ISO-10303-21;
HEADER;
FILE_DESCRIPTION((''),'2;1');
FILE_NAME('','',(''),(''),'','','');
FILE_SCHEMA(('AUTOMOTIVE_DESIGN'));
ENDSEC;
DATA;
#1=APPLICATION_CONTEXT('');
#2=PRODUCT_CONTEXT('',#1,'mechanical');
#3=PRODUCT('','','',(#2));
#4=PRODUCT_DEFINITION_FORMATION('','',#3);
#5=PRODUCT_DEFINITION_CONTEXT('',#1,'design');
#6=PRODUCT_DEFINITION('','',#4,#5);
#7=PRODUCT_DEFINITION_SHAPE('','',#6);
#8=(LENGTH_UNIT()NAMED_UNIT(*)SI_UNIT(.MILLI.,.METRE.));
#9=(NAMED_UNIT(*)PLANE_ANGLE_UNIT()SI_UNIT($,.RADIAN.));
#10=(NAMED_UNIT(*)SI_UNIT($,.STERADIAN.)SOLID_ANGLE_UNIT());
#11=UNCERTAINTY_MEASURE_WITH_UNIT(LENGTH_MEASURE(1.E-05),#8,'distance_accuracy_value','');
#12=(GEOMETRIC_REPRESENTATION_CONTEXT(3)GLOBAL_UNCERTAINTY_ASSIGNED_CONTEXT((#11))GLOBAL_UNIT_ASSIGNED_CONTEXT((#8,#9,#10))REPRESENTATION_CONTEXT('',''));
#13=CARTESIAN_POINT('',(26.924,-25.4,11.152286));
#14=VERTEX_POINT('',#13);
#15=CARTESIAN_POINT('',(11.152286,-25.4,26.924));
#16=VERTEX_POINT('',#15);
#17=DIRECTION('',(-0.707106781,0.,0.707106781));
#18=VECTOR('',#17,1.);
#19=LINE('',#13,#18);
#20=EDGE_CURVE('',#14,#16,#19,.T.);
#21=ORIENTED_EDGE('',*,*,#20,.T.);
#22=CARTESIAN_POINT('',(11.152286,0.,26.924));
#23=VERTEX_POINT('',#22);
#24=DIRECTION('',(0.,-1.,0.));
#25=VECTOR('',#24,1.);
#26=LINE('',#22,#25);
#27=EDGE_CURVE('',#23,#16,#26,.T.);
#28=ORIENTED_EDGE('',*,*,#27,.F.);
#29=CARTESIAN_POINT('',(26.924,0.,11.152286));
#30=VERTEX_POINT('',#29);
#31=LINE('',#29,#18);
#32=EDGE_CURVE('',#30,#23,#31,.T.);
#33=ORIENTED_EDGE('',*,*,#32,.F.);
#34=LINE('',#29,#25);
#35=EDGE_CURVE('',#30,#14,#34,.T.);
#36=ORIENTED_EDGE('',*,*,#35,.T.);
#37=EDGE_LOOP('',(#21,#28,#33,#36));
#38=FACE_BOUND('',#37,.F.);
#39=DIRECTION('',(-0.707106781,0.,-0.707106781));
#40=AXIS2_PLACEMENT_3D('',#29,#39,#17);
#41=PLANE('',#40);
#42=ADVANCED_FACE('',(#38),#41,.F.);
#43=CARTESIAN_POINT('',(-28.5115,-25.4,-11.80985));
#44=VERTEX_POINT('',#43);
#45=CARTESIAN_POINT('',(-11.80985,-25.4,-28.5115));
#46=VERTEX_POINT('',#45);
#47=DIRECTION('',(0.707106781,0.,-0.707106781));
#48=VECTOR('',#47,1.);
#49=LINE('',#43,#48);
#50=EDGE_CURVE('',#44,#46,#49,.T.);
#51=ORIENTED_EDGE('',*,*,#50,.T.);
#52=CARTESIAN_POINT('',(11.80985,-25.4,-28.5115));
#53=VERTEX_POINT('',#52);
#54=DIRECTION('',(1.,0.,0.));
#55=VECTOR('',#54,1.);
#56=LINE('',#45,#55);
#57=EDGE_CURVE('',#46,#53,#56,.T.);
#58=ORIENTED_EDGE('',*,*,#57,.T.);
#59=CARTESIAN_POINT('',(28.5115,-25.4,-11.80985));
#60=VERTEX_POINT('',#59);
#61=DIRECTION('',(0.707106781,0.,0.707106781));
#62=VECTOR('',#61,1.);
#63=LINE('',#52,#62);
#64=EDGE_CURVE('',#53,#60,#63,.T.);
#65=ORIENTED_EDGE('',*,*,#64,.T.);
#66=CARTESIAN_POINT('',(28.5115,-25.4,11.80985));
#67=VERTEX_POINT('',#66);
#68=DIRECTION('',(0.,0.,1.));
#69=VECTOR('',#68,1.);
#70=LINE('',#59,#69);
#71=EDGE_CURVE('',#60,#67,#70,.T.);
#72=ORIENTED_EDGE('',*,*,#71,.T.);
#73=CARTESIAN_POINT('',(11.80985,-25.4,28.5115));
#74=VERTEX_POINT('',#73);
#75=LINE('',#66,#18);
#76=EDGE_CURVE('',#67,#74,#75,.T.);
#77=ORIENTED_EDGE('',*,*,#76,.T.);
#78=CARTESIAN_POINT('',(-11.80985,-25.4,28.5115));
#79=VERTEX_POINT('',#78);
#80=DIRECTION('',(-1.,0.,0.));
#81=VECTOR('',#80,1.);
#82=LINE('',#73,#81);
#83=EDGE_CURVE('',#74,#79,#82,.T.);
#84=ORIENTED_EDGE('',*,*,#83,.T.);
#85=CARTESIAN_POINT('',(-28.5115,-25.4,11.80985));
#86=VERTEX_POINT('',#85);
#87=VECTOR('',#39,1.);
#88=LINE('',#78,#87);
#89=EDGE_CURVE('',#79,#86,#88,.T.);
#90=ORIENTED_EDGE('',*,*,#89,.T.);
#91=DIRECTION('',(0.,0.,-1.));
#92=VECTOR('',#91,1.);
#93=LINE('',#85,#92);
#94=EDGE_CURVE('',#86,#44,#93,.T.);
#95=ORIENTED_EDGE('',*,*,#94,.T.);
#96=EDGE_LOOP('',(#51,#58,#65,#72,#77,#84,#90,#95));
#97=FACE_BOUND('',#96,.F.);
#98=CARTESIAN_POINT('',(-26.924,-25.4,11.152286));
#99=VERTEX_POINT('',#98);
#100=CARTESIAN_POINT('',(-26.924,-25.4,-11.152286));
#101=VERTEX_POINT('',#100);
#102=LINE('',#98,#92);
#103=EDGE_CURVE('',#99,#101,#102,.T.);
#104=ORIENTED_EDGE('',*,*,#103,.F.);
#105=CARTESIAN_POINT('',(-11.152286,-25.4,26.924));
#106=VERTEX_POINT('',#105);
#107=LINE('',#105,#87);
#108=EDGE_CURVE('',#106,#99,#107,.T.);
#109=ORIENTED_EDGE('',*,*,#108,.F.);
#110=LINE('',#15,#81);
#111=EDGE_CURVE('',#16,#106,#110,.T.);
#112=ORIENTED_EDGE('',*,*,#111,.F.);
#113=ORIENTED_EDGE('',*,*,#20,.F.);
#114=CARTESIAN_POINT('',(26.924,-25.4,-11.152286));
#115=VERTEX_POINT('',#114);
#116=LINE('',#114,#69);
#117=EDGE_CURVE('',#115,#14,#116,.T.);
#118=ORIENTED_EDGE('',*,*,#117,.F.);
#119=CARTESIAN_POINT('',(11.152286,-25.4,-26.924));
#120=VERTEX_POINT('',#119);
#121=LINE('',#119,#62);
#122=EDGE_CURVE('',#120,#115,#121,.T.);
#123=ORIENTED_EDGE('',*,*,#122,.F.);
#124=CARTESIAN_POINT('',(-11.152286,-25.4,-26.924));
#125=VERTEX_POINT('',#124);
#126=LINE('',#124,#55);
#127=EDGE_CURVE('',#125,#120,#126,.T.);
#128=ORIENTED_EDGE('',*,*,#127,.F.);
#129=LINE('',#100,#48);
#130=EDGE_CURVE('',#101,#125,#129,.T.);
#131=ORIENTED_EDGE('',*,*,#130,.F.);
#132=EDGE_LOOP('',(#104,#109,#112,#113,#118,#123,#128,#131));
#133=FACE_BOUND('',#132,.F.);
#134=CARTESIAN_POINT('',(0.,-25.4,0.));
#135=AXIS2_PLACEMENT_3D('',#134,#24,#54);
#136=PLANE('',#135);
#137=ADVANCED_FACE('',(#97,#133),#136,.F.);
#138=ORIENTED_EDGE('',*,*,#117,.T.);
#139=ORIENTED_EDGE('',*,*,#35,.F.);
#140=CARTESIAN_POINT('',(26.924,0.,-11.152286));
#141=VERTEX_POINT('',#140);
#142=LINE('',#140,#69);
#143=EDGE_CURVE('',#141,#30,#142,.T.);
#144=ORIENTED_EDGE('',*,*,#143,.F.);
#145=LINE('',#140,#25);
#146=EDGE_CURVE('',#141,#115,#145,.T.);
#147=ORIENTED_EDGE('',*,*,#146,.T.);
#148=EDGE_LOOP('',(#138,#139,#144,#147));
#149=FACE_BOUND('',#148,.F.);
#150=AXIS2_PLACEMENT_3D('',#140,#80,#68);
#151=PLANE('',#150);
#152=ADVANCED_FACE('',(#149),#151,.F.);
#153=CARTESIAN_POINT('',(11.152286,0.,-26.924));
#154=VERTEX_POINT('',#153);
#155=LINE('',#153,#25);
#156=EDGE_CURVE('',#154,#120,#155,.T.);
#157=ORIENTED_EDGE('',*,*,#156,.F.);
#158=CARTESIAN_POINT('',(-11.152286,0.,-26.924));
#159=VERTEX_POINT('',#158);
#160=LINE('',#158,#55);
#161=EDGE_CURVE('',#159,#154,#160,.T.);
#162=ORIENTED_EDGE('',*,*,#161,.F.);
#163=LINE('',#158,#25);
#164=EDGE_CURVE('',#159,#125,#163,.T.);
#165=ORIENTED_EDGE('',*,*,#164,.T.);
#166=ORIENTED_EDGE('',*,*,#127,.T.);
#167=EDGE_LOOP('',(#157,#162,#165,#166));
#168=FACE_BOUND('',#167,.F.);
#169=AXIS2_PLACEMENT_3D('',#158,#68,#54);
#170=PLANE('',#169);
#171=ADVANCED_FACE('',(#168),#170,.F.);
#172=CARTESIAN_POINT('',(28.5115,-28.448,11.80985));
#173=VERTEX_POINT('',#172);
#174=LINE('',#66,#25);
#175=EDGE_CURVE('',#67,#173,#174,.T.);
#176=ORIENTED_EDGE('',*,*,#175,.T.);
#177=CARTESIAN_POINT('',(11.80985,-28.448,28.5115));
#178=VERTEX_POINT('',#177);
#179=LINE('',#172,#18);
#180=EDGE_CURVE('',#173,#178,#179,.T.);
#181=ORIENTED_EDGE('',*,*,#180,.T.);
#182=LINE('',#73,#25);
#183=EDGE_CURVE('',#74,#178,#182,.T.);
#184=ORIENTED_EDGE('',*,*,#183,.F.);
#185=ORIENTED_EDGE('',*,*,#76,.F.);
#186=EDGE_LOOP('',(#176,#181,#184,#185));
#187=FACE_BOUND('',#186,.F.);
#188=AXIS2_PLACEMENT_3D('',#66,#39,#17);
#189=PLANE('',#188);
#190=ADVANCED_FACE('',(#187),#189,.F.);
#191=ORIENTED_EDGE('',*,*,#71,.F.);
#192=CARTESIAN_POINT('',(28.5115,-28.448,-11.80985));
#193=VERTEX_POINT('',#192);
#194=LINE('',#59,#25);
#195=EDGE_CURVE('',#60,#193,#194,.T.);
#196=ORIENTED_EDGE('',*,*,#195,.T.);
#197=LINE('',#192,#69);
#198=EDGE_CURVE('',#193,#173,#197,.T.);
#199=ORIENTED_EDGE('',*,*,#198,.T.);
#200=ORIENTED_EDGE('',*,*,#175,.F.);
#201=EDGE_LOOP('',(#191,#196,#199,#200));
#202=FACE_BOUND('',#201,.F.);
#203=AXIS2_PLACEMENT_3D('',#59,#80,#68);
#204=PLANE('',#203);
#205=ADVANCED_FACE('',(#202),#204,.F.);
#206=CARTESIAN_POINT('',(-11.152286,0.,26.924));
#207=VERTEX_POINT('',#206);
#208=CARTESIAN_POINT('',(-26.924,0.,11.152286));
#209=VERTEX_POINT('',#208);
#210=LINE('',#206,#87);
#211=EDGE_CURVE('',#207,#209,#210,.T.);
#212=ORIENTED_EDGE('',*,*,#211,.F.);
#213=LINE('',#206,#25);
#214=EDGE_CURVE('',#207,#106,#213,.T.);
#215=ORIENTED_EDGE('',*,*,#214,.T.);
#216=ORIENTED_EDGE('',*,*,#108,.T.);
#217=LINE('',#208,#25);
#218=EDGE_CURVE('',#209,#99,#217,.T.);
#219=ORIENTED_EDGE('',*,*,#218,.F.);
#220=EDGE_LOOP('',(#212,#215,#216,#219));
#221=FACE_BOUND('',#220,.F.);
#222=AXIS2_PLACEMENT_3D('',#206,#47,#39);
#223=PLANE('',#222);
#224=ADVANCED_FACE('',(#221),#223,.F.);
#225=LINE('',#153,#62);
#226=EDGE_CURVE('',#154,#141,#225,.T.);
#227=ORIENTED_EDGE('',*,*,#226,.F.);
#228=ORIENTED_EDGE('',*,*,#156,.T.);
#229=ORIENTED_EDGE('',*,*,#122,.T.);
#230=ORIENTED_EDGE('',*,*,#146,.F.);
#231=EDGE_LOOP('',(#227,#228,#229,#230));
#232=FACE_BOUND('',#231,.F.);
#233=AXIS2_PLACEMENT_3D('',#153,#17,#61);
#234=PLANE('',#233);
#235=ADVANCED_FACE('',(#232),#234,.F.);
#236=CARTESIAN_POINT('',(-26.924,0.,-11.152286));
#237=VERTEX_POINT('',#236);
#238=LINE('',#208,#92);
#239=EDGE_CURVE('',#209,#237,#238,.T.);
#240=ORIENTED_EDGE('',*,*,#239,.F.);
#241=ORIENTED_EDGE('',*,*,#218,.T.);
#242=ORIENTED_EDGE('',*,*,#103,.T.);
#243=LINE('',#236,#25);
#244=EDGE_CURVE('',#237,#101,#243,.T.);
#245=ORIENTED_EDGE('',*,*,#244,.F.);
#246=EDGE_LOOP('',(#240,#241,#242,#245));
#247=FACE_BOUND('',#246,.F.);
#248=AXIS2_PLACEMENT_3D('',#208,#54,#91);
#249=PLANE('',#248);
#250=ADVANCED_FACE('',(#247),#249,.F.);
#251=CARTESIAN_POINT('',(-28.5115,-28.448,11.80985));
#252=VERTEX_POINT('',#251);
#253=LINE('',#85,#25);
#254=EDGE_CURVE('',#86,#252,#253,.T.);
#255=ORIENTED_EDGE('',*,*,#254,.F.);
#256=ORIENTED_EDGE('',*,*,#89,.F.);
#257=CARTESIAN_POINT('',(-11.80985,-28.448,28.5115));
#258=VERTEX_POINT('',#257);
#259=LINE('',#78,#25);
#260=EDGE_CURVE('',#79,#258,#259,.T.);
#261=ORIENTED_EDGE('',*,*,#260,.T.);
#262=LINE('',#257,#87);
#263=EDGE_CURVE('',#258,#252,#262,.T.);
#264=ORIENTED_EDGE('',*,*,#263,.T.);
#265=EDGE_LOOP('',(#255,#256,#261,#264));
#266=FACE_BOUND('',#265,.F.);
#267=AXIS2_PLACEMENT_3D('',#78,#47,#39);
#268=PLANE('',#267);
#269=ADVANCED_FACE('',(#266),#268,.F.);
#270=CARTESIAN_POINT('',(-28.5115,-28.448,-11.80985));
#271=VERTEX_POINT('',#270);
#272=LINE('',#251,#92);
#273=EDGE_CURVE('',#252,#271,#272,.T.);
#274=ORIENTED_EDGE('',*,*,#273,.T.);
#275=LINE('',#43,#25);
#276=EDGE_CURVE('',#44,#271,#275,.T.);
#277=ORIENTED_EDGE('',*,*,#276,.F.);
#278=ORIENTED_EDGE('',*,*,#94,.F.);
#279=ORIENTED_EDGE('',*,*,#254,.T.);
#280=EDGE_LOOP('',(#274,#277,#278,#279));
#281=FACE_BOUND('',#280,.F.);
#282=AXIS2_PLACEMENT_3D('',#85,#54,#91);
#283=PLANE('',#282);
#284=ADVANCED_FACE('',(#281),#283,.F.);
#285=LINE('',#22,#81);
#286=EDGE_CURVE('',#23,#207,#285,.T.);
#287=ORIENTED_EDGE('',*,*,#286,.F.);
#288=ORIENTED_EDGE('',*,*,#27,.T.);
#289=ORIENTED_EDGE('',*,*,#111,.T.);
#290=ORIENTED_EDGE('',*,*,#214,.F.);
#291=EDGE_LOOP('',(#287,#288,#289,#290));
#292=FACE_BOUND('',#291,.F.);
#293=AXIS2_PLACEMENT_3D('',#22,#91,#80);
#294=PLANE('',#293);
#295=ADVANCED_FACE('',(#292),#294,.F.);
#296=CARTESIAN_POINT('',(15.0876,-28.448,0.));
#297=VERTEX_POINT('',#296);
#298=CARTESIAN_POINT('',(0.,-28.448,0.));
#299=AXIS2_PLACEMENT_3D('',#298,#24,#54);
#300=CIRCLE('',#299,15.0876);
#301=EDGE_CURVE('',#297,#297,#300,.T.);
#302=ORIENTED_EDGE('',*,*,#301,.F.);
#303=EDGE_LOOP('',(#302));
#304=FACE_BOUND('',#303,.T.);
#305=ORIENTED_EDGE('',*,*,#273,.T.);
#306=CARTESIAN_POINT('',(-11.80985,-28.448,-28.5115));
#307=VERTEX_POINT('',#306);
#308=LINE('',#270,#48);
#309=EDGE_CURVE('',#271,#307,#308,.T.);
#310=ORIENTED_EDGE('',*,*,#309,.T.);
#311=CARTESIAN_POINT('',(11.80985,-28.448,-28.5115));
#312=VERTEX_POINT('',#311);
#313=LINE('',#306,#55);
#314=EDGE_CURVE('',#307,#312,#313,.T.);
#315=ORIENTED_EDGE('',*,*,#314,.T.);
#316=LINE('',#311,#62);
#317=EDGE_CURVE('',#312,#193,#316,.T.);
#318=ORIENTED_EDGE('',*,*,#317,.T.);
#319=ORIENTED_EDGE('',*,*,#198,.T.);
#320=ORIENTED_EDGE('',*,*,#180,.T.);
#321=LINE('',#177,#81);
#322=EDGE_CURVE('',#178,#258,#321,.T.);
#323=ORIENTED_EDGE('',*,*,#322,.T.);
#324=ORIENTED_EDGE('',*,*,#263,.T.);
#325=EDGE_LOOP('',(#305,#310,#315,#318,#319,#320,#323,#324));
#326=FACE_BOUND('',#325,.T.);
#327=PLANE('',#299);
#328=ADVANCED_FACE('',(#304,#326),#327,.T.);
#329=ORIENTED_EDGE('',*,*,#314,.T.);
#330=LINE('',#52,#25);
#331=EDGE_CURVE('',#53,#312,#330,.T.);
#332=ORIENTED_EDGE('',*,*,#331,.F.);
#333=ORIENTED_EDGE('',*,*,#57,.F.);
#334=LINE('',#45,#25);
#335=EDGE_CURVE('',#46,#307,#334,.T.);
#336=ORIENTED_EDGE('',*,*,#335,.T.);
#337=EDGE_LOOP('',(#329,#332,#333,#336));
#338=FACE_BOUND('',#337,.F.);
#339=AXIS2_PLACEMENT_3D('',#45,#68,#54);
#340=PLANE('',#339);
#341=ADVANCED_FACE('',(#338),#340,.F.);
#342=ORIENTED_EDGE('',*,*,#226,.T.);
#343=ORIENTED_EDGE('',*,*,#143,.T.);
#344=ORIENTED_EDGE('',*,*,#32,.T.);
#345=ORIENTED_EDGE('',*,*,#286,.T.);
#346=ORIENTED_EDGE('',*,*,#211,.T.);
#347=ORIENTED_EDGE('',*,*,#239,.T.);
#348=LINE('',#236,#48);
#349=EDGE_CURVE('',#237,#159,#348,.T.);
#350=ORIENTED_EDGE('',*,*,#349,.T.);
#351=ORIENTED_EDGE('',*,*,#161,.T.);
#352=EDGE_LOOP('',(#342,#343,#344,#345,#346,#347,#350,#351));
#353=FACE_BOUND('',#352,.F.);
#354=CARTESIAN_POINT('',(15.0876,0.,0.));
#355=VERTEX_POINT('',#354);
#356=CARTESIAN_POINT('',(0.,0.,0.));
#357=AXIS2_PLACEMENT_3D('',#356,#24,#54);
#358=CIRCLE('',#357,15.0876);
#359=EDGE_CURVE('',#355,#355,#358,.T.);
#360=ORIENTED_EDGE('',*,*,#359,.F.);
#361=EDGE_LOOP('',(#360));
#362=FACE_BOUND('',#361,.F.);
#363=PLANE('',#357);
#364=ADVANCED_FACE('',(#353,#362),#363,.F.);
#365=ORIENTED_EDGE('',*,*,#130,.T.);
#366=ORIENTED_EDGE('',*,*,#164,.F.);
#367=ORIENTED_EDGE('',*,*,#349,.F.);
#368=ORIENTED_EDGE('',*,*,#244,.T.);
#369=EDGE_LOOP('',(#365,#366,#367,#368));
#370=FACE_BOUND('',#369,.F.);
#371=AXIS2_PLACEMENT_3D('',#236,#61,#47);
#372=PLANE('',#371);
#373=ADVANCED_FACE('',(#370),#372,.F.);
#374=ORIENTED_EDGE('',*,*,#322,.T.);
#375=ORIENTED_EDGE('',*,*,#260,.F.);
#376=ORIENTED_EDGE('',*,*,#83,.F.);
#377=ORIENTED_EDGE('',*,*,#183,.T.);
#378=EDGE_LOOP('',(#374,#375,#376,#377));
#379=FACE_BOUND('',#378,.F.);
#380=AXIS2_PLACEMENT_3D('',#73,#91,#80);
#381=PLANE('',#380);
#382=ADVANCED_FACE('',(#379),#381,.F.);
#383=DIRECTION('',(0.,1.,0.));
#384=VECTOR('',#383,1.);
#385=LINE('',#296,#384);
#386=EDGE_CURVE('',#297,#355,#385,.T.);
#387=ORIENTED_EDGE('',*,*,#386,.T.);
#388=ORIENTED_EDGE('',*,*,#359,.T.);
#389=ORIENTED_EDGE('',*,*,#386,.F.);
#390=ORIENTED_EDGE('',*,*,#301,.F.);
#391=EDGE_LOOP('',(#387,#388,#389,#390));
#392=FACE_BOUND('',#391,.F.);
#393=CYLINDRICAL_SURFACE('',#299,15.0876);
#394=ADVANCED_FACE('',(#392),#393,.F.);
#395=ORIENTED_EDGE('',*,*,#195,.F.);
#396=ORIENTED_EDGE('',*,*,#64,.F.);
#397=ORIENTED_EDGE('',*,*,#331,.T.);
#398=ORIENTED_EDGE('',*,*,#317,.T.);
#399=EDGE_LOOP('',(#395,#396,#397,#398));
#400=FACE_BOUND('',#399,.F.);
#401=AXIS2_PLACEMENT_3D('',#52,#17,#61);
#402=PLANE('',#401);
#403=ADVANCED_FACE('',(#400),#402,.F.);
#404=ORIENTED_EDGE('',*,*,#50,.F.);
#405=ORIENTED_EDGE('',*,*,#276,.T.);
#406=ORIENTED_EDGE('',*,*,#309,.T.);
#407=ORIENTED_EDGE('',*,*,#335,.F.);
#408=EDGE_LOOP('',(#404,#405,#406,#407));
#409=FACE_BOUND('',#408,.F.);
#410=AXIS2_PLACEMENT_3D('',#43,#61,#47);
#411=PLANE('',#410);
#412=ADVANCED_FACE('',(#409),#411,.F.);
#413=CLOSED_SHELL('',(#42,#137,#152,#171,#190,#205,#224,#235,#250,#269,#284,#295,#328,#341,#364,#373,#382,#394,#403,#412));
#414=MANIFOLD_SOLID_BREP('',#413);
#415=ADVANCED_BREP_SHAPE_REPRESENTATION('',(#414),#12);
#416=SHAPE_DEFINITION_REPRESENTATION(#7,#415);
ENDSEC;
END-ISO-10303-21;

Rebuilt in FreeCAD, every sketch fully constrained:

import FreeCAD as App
import Part
import Sketcher

V = App.Vector
Q = App.Units.Quantity

doc = App.newDocument("Part")
body = doc.addObject("PartDesign::Body", "Body")

sketch1 = doc.addObject("Sketcher::SketchObject", "Sketch")
body.addObject(sketch1)
sketch1.AttachmentSupport = (doc.XZ_Plane, [""])
sketch1.MapMode = "FlatFace"
sketch1.addGeometry([
    Part.LineSegment(V(11.152286, 26.924, 0), V(-11.152286, 26.924, 0)),
    Part.LineSegment(V(-11.152286, 26.924, 0), V(-26.924, 11.152286, 0)),
    Part.LineSegment(V(-26.924, 11.152286, 0), V(-26.924, -11.152286, 0)),
    Part.LineSegment(V(-26.924, -11.152286, 0), V(-11.152286, -26.924, 0)),
    Part.LineSegment(V(-11.152286, -26.924, 0), V(11.152286, -26.924, 0)),
    Part.LineSegment(V(11.152286, -26.924, 0), V(26.924, -11.152286, 0)),
    Part.LineSegment(V(26.924, -11.152286, 0), V(26.924, 11.152286, 0)),
    Part.LineSegment(V(26.924, 11.152286, 0), V(11.152286, 26.924, 0)),
], False)
sketch1.addConstraint([
    Sketcher.Constraint("Coincident", 0, 2, 1, 1),
    Sketcher.Constraint("Coincident", 1, 2, 2, 1),
    Sketcher.Constraint("Coincident", 2, 2, 3, 1),
    Sketcher.Constraint("Coincident", 3, 2, 4, 1),
    Sketcher.Constraint("Coincident", 4, 2, 5, 1),
    Sketcher.Constraint("Coincident", 5, 2, 6, 1),
    Sketcher.Constraint("Coincident", 6, 2, 7, 1),
    Sketcher.Constraint("Coincident", 7, 2, 0, 1),
    Sketcher.Constraint("Horizontal", 0),
    Sketcher.Constraint("Vertical", 2),
    Sketcher.Constraint("Horizontal", 4),
    Sketcher.Constraint("Vertical", 6),
    Sketcher.Constraint("Symmetric", 0, 2, 4, 2, -1, 1),
    Sketcher.Constraint("Symmetric", 1, 2, 5, 2, -1, 1),
    Sketcher.Constraint("Perpendicular", 1, 3),
    Sketcher.Constraint("Perpendicular", 5, 7),
    Sketcher.Constraint("Horizontal", 2, 2, 5, 2),
    Sketcher.Constraint("Horizontal", 1, 2, 6, 2),
    Sketcher.Constraint("Vertical", 0, 2, 3, 2),
    Sketcher.Constraint("Equal", 4, 2),
    Sketcher.Constraint("DistanceY", -1, 1, 0, 2, Q("1.06 in")),
    Sketcher.Constraint("Distance", 1, Q("22.304572 mm")),
])
pad1 = doc.addObject("PartDesign::Pad", "Pad")
body.addObject(pad1)
pad1.Profile = sketch1
pad1.Length = Q("1 in")

sketch2 = doc.addObject("Sketcher::SketchObject", "Sketch001")
body.addObject(sketch2)
sketch2.AttachmentSupport = (doc.XZ_Plane, [""])
sketch2.MapMode = "FlatFace"
sketch2.AttachmentOffset = App.Placement(V(0, 0, 1 * 25.4), App.Rotation())
sketch2.addGeometry([
    Part.LineSegment(V(11.80985, 28.5115, 0), V(-11.80985, 28.5115, 0)),
    Part.LineSegment(V(-11.80985, 28.5115, 0), V(-28.5115, 11.80985, 0)),
    Part.LineSegment(V(-28.5115, 11.80985, 0), V(-28.5115, -11.80985, 0)),
    Part.LineSegment(V(-28.5115, -11.80985, 0), V(-11.80985, -28.5115, 0)),
    Part.LineSegment(V(-11.80985, -28.5115, 0), V(11.80985, -28.5115, 0)),
    Part.LineSegment(V(11.80985, -28.5115, 0), V(28.5115, -11.80985, 0)),
    Part.LineSegment(V(28.5115, -11.80985, 0), V(28.5115, 11.80985, 0)),
    Part.LineSegment(V(28.5115, 11.80985, 0), V(11.80985, 28.5115, 0)),
], False)
sketch2.addConstraint([
    Sketcher.Constraint("Coincident", 0, 2, 1, 1),
    Sketcher.Constraint("Coincident", 1, 2, 2, 1),
    Sketcher.Constraint("Coincident", 2, 2, 3, 1),
    Sketcher.Constraint("Coincident", 3, 2, 4, 1),
    Sketcher.Constraint("Coincident", 4, 2, 5, 1),
    Sketcher.Constraint("Coincident", 5, 2, 6, 1),
    Sketcher.Constraint("Coincident", 6, 2, 7, 1),
    Sketcher.Constraint("Coincident", 7, 2, 0, 1),
    Sketcher.Constraint("Horizontal", 0),
    Sketcher.Constraint("Vertical", 2),
    Sketcher.Constraint("Horizontal", 4),
    Sketcher.Constraint("Vertical", 6),
    Sketcher.Constraint("Symmetric", 0, 2, 4, 2, -1, 1),
    Sketcher.Constraint("Symmetric", 1, 2, 5, 2, -1, 1),
    Sketcher.Constraint("Perpendicular", 1, 3),
    Sketcher.Constraint("Perpendicular", 5, 7),
    Sketcher.Constraint("Horizontal", 2, 2, 5, 2),
    Sketcher.Constraint("Horizontal", 1, 2, 6, 2),
    Sketcher.Constraint("Vertical", 0, 2, 3, 2),
    Sketcher.Constraint("Equal", 4, 2),
    Sketcher.Constraint("DistanceY", 3, 2, 0, 2, Q("2.245 in")),
    Sketcher.Constraint("DistanceX", 0, 2, 0, 1, Q("23.6197 mm")),
])
pad2 = doc.addObject("PartDesign::Pad", "Pad001")
body.addObject(pad2)
pad2.Profile = sketch2
pad2.Length = Q("0.12 in")

sketch3 = doc.addObject("Sketcher::SketchObject", "Sketch002")
body.addObject(sketch3)
sketch3.AttachmentSupport = (doc.XZ_Plane, [""])
sketch3.MapMode = "FlatFace"
sketch3.AttachmentOffset = App.Placement(V(0, 0, 1.12 * 25.4), App.Rotation())
sketch3.addGeometry(Part.Circle(V(0, 0, 0), V(0, 0, 1), 15.0876), False)
sketch3.addConstraint([
    Sketcher.Constraint("Coincident", 0, 3, -1, 1),
    Sketcher.Constraint("Diameter", 0, Q("1.188 in")),
])
pocket1 = doc.addObject("PartDesign::Pocket", "Pocket")
body.addObject(pocket1)
pocket1.Profile = sketch3
pocket1.Type = "ThroughAll"

doc.recompute()
